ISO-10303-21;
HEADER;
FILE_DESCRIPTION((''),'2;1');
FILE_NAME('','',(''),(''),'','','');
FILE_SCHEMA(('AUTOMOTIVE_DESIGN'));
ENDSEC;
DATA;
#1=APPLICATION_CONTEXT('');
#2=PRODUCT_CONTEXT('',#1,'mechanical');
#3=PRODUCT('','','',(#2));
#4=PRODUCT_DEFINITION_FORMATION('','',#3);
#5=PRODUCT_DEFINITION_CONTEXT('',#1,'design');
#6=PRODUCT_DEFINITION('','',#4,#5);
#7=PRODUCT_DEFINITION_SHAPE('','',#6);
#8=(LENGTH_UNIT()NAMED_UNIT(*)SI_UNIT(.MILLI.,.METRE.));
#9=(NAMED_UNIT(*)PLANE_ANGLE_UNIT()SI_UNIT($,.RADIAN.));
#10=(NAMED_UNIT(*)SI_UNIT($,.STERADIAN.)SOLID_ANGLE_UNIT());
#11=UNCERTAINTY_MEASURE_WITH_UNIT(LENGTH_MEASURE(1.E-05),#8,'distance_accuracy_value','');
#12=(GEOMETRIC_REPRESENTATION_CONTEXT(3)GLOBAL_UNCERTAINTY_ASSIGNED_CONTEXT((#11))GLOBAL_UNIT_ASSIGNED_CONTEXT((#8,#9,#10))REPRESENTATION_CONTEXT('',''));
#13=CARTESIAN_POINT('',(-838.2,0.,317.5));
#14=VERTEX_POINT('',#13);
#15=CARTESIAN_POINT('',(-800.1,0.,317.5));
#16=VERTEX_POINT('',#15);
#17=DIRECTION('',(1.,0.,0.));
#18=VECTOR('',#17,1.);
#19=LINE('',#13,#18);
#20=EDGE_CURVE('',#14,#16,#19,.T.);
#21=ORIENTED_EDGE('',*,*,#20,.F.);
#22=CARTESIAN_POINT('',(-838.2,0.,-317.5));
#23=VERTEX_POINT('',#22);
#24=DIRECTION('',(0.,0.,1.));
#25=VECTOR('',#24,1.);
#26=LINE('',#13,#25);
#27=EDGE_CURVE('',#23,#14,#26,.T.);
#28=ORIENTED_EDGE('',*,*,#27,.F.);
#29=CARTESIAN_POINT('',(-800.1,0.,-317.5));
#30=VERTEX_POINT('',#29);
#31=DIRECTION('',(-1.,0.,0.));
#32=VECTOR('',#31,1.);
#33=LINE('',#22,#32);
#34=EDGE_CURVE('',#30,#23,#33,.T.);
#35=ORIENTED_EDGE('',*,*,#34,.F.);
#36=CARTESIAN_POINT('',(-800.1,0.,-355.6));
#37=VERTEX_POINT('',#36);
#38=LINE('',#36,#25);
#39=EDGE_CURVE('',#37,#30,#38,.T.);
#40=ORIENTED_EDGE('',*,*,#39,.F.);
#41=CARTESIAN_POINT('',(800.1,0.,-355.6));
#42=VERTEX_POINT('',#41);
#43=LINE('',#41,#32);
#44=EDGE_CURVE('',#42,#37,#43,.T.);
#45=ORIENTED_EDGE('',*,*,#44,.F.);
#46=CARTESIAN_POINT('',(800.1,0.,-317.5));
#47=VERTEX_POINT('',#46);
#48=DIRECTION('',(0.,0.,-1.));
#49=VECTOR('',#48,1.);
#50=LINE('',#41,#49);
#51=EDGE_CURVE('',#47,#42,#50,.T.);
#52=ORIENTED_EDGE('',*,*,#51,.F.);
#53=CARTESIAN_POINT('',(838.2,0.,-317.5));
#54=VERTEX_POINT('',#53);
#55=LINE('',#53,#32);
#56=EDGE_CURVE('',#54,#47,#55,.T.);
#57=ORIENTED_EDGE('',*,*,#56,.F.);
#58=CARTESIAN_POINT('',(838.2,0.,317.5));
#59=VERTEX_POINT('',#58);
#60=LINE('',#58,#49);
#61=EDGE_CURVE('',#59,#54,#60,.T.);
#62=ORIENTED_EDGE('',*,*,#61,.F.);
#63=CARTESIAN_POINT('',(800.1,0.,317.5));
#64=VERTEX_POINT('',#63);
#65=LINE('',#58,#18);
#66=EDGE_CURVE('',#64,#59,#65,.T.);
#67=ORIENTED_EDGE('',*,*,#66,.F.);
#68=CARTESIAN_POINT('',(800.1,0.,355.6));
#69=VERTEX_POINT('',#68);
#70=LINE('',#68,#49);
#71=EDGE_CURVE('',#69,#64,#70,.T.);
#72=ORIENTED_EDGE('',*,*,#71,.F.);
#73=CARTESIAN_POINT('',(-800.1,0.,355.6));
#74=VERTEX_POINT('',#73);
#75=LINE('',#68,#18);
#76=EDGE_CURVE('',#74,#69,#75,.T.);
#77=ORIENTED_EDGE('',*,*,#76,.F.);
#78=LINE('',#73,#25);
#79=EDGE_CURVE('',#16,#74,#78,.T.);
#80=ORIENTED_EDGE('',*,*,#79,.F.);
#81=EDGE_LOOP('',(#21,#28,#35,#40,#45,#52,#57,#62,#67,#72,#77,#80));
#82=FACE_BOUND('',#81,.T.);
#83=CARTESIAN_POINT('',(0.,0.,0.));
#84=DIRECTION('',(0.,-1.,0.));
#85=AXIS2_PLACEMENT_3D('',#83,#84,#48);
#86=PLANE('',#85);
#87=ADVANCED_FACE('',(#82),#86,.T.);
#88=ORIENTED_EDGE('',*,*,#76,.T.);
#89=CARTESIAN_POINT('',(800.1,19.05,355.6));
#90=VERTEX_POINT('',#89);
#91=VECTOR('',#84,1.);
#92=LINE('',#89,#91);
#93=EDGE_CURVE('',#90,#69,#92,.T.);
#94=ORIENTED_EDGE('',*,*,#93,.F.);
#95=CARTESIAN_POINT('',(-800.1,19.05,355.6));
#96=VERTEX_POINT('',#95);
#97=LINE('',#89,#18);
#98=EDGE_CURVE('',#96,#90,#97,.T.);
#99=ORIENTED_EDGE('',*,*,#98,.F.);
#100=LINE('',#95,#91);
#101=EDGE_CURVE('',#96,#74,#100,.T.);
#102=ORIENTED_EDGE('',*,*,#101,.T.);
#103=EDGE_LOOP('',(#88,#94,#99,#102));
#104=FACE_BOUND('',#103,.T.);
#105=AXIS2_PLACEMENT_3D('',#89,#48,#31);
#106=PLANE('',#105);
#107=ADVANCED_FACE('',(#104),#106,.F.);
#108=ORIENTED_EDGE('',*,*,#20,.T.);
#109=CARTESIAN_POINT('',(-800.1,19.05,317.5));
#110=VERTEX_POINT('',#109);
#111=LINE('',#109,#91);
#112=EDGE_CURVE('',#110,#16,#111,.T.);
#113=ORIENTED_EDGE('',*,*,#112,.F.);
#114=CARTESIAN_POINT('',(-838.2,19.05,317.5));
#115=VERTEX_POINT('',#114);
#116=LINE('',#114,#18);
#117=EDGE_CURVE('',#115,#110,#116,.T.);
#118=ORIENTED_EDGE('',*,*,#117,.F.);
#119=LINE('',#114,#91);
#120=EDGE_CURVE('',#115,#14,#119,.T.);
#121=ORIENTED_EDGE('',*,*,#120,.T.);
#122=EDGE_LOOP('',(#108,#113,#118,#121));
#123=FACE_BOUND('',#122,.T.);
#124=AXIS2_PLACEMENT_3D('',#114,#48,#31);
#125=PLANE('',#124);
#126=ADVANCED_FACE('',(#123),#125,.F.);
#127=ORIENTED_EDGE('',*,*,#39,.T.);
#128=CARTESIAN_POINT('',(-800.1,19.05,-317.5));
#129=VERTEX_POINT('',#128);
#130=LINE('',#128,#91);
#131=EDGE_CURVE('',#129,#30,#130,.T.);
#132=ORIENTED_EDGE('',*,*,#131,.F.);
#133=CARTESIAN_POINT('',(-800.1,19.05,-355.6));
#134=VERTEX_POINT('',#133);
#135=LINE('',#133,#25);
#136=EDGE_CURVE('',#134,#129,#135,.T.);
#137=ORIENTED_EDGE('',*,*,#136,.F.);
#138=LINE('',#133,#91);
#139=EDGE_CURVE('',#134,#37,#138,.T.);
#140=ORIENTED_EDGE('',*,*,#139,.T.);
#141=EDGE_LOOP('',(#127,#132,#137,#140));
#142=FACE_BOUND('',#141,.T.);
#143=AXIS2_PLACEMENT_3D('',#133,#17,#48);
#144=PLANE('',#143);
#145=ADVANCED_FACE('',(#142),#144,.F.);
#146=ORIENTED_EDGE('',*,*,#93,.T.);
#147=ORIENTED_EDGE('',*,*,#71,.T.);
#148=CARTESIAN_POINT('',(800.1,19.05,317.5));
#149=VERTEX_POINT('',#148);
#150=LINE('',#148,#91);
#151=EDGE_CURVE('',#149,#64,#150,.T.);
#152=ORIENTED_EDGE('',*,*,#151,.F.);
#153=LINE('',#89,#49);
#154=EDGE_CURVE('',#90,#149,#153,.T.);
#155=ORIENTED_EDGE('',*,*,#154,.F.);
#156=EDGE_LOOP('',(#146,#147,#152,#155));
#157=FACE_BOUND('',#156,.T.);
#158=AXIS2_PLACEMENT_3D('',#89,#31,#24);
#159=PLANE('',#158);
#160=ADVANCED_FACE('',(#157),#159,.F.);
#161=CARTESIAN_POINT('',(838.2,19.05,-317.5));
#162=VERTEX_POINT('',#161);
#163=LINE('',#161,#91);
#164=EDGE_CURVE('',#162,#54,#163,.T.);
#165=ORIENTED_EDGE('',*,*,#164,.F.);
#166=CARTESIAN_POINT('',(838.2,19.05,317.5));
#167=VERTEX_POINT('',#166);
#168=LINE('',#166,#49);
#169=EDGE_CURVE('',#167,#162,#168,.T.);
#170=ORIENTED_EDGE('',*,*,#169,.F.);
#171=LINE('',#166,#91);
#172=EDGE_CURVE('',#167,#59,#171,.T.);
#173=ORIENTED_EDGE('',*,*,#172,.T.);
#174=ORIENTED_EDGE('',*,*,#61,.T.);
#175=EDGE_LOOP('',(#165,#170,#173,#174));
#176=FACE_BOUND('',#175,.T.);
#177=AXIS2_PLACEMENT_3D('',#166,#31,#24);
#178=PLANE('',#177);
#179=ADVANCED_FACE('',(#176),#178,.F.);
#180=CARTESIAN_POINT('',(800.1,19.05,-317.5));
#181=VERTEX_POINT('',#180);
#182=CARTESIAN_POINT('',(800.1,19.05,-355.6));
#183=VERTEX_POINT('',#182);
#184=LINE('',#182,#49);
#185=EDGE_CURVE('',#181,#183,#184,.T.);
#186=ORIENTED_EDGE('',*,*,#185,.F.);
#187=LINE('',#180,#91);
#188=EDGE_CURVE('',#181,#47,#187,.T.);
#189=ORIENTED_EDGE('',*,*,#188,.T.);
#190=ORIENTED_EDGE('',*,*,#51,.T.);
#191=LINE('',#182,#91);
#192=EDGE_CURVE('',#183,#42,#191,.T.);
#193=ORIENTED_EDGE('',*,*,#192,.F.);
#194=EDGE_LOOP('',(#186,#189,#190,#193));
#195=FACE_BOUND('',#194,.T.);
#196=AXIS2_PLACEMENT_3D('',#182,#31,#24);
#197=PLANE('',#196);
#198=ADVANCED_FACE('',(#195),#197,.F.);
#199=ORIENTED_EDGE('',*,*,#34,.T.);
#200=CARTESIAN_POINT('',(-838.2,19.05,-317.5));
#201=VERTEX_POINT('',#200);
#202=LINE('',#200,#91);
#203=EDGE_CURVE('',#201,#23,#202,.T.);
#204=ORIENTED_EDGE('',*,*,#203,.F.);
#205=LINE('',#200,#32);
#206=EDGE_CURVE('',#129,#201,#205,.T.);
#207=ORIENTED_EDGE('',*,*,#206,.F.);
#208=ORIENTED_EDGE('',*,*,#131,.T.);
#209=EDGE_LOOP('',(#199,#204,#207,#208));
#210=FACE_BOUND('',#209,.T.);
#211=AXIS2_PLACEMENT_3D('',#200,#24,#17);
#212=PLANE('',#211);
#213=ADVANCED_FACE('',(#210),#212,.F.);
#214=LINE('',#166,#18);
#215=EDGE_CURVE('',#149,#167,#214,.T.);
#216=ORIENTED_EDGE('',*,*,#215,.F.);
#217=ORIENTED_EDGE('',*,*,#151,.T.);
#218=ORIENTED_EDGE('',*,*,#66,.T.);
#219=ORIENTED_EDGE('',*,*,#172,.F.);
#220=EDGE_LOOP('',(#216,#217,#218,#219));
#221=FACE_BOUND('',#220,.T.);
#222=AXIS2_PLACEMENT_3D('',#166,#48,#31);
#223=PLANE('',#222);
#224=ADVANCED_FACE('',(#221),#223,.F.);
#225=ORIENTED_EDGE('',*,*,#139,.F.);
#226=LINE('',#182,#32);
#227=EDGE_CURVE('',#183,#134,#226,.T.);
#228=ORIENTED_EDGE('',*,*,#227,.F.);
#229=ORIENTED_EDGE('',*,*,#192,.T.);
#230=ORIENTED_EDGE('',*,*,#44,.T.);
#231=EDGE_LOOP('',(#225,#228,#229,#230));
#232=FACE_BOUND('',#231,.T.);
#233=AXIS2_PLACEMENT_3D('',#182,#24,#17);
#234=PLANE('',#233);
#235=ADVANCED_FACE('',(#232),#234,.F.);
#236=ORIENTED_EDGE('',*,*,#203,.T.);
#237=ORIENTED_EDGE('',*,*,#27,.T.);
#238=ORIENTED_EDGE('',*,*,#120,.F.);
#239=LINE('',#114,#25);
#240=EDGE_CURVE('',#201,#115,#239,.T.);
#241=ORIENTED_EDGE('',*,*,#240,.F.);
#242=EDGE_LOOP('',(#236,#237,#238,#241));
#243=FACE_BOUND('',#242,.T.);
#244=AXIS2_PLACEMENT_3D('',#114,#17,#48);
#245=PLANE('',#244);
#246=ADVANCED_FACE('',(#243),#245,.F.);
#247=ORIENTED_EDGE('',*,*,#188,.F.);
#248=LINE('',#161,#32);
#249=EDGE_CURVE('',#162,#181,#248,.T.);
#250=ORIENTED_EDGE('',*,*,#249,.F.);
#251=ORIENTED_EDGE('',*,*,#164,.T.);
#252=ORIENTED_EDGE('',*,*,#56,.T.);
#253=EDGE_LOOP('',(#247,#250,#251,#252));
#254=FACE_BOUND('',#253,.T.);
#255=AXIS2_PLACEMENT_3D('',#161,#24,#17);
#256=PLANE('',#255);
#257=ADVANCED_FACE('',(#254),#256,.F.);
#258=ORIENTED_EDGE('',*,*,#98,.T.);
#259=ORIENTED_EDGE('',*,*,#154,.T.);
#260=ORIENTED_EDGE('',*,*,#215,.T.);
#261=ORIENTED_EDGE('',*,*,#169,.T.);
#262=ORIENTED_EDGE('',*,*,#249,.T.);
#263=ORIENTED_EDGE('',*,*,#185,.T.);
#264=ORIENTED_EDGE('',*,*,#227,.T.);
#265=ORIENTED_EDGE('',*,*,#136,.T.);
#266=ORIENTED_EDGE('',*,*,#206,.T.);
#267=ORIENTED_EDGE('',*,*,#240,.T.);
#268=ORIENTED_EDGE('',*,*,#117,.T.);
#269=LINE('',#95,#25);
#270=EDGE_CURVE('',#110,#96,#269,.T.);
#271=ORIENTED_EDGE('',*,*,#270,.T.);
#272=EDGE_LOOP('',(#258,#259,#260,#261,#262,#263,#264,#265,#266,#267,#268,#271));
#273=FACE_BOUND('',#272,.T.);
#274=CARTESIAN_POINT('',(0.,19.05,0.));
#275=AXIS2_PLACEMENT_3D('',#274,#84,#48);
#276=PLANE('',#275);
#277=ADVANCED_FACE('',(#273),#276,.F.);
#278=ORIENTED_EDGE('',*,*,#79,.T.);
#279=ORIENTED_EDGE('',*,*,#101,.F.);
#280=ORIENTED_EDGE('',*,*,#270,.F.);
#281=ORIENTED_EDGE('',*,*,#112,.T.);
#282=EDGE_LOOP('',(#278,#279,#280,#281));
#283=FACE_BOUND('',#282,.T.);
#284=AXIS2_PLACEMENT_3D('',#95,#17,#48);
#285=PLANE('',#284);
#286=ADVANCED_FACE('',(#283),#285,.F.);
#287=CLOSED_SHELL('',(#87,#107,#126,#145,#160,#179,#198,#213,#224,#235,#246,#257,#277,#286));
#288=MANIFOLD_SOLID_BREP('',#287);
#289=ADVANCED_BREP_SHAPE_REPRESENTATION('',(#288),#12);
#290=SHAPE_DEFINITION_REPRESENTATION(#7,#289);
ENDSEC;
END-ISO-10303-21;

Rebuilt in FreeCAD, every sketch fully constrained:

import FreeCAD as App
import Part
import Sketcher

V = App.Vector
Q = App.Units.Quantity

doc = App.newDocument("Part")
body = doc.addObject("PartDesign::Body", "Body")

# Sketch on XZ plane
sketch1 = body.newObject("Sketcher::SketchObject", "Sketch")
sketch1.AttachmentSupport = (doc.getObject("XZ_Plane"), [""])
sketch1.MapMode = "FlatFace"
sketch1.addGeometry(Part.LineSegment(V(-800.1, 355.6, 0), V(800.1, 355.6, 0)), False)
sketch1.addGeometry(Part.LineSegment(V(800.1, 355.6, 0), V(800.1, 317.5, 0)), False)
sketch1.addGeometry(Part.LineSegment(V(800.1, 317.5, 0), V(838.2, 317.5, 0)), False)
sketch1.addGeometry(Part.LineSegment(V(838.2, 317.5, 0), V(838.2, -317.5, 0)), False)
sketch1.addGeometry(Part.LineSegment(V(838.2, -317.5, 0), V(800.1, -317.5, 0)), False)
sketch1.addGeometry(Part.LineSegment(V(800.1, -317.5, 0), V(800.1, -355.6, 0)), False)
sketch1.addGeometry(Part.LineSegment(V(800.1, -355.6, 0), V(-800.1, -355.6, 0)), False)
sketch1.addGeometry(Part.LineSegment(V(-800.1, -355.6, 0), V(-800.1, -317.5, 0)), False)
sketch1.addGeometry(Part.LineSegment(V(-800.1, -317.5, 0), V(-838.2, -317.5, 0)), False)
sketch1.addGeometry(Part.LineSegment(V(-838.2, -317.5, 0), V(-838.2, 317.5, 0)), False)
sketch1.addGeometry(Part.LineSegment(V(-838.2, 317.5, 0), V(-800.1, 317.5, 0)), False)
sketch1.addGeometry(Part.LineSegment(V(-800.1, 317.5, 0), V(-800.1, 355.6, 0)), False)
sketch1.addConstraint(Sketcher.Constraint("Coincident", 0, 2, 1, 1))
sketch1.addConstraint(Sketcher.Constraint("Coincident", 1, 2, 2, 1))
sketch1.addConstraint(Sketcher.Constraint("Coincident", 2, 2, 3, 1))
sketch1.addConstraint(Sketcher.Constraint("Coincident", 3, 2, 4, 1))
sketch1.addConstraint(Sketcher.Constraint("Coincident", 4, 2, 5, 1))
sketch1.addConstraint(Sketcher.Constraint("Coincident", 5, 2, 6, 1))
sketch1.addConstraint(Sketcher.Constraint("Coincident", 6, 2, 7, 1))
sketch1.addConstraint(Sketcher.Constraint("Coincident", 7, 2, 8, 1))
sketch1.addConstraint(Sketcher.Constraint("Coincident", 8, 2, 9, 1))
sketch1.addConstraint(Sketcher.Constraint("Coincident", 9, 2, 10, 1))
sketch1.addConstraint(Sketcher.Constraint("Coincident", 10, 2, 11, 1))
sketch1.addConstraint(Sketcher.Constraint("Coincident", 11, 2, 0, 1))
sketch1.addConstraint(Sketcher.Constraint("Horizontal", 0))
sketch1.addConstraint(Sketcher.Constraint("Vertical", 1))
sketch1.addConstraint(Sketcher.Constraint("Horizontal", 2))
sketch1.addConstraint(Sketcher.Constraint("Vertical", 3))
sketch1.addConstraint(Sketcher.Constraint("Horizontal", 4))
sketch1.addConstraint(Sketcher.Constraint("Vertical", 5))
sketch1.addConstraint(Sketcher.Constraint("Horizontal", 6))
sketch1.addConstraint(Sketcher.Constraint("Vertical", 7))
sketch1.addConstraint(Sketcher.Constraint("Horizontal", 8))
sketch1.addConstraint(Sketcher.Constraint("Vertical", 9))
sketch1.addConstraint(Sketcher.Constraint("Horizontal", 10))
sketch1.addConstraint(Sketcher.Constraint("Vertical", 11))
sketch1.addConstraint(Sketcher.Constraint("Symmetric", 0, 2, 6, 2, -1, 1))
sketch1.addConstraint(Sketcher.Constraint("Symmetric", 2, 2, 8, 2, -1, 1))
sketch1.addConstraint(Sketcher.Constraint("Symmetric", 4, 2, 10, 2, -1, 1))
sketch1.addConstraint(Sketcher.Constraint("Symmetric", 4, 2, 7, 2, -2))
sketch1.addConstraint(Sketcher.Constraint("Equal", 10, 1))
sketch1.addConstraint(Sketcher.Constraint("DistanceX", 0, 1, 0, 2, Q("63 in")))
sketch1.addConstraint(Sketcher.Constraint("DistanceY", 3, 2, 3, 1, Q("25 in")))
sketch1.addConstraint(Sketcher.Constraint("DistanceX", 2, 1, 2, 2, Q("1.5 in")))
pad1 = body.newObject("PartDesign::Pad", "Pad")
pad1.Profile = sketch1
pad1.Length = Q("0.75 in")
pad1.Reversed = True

doc.recompute()
